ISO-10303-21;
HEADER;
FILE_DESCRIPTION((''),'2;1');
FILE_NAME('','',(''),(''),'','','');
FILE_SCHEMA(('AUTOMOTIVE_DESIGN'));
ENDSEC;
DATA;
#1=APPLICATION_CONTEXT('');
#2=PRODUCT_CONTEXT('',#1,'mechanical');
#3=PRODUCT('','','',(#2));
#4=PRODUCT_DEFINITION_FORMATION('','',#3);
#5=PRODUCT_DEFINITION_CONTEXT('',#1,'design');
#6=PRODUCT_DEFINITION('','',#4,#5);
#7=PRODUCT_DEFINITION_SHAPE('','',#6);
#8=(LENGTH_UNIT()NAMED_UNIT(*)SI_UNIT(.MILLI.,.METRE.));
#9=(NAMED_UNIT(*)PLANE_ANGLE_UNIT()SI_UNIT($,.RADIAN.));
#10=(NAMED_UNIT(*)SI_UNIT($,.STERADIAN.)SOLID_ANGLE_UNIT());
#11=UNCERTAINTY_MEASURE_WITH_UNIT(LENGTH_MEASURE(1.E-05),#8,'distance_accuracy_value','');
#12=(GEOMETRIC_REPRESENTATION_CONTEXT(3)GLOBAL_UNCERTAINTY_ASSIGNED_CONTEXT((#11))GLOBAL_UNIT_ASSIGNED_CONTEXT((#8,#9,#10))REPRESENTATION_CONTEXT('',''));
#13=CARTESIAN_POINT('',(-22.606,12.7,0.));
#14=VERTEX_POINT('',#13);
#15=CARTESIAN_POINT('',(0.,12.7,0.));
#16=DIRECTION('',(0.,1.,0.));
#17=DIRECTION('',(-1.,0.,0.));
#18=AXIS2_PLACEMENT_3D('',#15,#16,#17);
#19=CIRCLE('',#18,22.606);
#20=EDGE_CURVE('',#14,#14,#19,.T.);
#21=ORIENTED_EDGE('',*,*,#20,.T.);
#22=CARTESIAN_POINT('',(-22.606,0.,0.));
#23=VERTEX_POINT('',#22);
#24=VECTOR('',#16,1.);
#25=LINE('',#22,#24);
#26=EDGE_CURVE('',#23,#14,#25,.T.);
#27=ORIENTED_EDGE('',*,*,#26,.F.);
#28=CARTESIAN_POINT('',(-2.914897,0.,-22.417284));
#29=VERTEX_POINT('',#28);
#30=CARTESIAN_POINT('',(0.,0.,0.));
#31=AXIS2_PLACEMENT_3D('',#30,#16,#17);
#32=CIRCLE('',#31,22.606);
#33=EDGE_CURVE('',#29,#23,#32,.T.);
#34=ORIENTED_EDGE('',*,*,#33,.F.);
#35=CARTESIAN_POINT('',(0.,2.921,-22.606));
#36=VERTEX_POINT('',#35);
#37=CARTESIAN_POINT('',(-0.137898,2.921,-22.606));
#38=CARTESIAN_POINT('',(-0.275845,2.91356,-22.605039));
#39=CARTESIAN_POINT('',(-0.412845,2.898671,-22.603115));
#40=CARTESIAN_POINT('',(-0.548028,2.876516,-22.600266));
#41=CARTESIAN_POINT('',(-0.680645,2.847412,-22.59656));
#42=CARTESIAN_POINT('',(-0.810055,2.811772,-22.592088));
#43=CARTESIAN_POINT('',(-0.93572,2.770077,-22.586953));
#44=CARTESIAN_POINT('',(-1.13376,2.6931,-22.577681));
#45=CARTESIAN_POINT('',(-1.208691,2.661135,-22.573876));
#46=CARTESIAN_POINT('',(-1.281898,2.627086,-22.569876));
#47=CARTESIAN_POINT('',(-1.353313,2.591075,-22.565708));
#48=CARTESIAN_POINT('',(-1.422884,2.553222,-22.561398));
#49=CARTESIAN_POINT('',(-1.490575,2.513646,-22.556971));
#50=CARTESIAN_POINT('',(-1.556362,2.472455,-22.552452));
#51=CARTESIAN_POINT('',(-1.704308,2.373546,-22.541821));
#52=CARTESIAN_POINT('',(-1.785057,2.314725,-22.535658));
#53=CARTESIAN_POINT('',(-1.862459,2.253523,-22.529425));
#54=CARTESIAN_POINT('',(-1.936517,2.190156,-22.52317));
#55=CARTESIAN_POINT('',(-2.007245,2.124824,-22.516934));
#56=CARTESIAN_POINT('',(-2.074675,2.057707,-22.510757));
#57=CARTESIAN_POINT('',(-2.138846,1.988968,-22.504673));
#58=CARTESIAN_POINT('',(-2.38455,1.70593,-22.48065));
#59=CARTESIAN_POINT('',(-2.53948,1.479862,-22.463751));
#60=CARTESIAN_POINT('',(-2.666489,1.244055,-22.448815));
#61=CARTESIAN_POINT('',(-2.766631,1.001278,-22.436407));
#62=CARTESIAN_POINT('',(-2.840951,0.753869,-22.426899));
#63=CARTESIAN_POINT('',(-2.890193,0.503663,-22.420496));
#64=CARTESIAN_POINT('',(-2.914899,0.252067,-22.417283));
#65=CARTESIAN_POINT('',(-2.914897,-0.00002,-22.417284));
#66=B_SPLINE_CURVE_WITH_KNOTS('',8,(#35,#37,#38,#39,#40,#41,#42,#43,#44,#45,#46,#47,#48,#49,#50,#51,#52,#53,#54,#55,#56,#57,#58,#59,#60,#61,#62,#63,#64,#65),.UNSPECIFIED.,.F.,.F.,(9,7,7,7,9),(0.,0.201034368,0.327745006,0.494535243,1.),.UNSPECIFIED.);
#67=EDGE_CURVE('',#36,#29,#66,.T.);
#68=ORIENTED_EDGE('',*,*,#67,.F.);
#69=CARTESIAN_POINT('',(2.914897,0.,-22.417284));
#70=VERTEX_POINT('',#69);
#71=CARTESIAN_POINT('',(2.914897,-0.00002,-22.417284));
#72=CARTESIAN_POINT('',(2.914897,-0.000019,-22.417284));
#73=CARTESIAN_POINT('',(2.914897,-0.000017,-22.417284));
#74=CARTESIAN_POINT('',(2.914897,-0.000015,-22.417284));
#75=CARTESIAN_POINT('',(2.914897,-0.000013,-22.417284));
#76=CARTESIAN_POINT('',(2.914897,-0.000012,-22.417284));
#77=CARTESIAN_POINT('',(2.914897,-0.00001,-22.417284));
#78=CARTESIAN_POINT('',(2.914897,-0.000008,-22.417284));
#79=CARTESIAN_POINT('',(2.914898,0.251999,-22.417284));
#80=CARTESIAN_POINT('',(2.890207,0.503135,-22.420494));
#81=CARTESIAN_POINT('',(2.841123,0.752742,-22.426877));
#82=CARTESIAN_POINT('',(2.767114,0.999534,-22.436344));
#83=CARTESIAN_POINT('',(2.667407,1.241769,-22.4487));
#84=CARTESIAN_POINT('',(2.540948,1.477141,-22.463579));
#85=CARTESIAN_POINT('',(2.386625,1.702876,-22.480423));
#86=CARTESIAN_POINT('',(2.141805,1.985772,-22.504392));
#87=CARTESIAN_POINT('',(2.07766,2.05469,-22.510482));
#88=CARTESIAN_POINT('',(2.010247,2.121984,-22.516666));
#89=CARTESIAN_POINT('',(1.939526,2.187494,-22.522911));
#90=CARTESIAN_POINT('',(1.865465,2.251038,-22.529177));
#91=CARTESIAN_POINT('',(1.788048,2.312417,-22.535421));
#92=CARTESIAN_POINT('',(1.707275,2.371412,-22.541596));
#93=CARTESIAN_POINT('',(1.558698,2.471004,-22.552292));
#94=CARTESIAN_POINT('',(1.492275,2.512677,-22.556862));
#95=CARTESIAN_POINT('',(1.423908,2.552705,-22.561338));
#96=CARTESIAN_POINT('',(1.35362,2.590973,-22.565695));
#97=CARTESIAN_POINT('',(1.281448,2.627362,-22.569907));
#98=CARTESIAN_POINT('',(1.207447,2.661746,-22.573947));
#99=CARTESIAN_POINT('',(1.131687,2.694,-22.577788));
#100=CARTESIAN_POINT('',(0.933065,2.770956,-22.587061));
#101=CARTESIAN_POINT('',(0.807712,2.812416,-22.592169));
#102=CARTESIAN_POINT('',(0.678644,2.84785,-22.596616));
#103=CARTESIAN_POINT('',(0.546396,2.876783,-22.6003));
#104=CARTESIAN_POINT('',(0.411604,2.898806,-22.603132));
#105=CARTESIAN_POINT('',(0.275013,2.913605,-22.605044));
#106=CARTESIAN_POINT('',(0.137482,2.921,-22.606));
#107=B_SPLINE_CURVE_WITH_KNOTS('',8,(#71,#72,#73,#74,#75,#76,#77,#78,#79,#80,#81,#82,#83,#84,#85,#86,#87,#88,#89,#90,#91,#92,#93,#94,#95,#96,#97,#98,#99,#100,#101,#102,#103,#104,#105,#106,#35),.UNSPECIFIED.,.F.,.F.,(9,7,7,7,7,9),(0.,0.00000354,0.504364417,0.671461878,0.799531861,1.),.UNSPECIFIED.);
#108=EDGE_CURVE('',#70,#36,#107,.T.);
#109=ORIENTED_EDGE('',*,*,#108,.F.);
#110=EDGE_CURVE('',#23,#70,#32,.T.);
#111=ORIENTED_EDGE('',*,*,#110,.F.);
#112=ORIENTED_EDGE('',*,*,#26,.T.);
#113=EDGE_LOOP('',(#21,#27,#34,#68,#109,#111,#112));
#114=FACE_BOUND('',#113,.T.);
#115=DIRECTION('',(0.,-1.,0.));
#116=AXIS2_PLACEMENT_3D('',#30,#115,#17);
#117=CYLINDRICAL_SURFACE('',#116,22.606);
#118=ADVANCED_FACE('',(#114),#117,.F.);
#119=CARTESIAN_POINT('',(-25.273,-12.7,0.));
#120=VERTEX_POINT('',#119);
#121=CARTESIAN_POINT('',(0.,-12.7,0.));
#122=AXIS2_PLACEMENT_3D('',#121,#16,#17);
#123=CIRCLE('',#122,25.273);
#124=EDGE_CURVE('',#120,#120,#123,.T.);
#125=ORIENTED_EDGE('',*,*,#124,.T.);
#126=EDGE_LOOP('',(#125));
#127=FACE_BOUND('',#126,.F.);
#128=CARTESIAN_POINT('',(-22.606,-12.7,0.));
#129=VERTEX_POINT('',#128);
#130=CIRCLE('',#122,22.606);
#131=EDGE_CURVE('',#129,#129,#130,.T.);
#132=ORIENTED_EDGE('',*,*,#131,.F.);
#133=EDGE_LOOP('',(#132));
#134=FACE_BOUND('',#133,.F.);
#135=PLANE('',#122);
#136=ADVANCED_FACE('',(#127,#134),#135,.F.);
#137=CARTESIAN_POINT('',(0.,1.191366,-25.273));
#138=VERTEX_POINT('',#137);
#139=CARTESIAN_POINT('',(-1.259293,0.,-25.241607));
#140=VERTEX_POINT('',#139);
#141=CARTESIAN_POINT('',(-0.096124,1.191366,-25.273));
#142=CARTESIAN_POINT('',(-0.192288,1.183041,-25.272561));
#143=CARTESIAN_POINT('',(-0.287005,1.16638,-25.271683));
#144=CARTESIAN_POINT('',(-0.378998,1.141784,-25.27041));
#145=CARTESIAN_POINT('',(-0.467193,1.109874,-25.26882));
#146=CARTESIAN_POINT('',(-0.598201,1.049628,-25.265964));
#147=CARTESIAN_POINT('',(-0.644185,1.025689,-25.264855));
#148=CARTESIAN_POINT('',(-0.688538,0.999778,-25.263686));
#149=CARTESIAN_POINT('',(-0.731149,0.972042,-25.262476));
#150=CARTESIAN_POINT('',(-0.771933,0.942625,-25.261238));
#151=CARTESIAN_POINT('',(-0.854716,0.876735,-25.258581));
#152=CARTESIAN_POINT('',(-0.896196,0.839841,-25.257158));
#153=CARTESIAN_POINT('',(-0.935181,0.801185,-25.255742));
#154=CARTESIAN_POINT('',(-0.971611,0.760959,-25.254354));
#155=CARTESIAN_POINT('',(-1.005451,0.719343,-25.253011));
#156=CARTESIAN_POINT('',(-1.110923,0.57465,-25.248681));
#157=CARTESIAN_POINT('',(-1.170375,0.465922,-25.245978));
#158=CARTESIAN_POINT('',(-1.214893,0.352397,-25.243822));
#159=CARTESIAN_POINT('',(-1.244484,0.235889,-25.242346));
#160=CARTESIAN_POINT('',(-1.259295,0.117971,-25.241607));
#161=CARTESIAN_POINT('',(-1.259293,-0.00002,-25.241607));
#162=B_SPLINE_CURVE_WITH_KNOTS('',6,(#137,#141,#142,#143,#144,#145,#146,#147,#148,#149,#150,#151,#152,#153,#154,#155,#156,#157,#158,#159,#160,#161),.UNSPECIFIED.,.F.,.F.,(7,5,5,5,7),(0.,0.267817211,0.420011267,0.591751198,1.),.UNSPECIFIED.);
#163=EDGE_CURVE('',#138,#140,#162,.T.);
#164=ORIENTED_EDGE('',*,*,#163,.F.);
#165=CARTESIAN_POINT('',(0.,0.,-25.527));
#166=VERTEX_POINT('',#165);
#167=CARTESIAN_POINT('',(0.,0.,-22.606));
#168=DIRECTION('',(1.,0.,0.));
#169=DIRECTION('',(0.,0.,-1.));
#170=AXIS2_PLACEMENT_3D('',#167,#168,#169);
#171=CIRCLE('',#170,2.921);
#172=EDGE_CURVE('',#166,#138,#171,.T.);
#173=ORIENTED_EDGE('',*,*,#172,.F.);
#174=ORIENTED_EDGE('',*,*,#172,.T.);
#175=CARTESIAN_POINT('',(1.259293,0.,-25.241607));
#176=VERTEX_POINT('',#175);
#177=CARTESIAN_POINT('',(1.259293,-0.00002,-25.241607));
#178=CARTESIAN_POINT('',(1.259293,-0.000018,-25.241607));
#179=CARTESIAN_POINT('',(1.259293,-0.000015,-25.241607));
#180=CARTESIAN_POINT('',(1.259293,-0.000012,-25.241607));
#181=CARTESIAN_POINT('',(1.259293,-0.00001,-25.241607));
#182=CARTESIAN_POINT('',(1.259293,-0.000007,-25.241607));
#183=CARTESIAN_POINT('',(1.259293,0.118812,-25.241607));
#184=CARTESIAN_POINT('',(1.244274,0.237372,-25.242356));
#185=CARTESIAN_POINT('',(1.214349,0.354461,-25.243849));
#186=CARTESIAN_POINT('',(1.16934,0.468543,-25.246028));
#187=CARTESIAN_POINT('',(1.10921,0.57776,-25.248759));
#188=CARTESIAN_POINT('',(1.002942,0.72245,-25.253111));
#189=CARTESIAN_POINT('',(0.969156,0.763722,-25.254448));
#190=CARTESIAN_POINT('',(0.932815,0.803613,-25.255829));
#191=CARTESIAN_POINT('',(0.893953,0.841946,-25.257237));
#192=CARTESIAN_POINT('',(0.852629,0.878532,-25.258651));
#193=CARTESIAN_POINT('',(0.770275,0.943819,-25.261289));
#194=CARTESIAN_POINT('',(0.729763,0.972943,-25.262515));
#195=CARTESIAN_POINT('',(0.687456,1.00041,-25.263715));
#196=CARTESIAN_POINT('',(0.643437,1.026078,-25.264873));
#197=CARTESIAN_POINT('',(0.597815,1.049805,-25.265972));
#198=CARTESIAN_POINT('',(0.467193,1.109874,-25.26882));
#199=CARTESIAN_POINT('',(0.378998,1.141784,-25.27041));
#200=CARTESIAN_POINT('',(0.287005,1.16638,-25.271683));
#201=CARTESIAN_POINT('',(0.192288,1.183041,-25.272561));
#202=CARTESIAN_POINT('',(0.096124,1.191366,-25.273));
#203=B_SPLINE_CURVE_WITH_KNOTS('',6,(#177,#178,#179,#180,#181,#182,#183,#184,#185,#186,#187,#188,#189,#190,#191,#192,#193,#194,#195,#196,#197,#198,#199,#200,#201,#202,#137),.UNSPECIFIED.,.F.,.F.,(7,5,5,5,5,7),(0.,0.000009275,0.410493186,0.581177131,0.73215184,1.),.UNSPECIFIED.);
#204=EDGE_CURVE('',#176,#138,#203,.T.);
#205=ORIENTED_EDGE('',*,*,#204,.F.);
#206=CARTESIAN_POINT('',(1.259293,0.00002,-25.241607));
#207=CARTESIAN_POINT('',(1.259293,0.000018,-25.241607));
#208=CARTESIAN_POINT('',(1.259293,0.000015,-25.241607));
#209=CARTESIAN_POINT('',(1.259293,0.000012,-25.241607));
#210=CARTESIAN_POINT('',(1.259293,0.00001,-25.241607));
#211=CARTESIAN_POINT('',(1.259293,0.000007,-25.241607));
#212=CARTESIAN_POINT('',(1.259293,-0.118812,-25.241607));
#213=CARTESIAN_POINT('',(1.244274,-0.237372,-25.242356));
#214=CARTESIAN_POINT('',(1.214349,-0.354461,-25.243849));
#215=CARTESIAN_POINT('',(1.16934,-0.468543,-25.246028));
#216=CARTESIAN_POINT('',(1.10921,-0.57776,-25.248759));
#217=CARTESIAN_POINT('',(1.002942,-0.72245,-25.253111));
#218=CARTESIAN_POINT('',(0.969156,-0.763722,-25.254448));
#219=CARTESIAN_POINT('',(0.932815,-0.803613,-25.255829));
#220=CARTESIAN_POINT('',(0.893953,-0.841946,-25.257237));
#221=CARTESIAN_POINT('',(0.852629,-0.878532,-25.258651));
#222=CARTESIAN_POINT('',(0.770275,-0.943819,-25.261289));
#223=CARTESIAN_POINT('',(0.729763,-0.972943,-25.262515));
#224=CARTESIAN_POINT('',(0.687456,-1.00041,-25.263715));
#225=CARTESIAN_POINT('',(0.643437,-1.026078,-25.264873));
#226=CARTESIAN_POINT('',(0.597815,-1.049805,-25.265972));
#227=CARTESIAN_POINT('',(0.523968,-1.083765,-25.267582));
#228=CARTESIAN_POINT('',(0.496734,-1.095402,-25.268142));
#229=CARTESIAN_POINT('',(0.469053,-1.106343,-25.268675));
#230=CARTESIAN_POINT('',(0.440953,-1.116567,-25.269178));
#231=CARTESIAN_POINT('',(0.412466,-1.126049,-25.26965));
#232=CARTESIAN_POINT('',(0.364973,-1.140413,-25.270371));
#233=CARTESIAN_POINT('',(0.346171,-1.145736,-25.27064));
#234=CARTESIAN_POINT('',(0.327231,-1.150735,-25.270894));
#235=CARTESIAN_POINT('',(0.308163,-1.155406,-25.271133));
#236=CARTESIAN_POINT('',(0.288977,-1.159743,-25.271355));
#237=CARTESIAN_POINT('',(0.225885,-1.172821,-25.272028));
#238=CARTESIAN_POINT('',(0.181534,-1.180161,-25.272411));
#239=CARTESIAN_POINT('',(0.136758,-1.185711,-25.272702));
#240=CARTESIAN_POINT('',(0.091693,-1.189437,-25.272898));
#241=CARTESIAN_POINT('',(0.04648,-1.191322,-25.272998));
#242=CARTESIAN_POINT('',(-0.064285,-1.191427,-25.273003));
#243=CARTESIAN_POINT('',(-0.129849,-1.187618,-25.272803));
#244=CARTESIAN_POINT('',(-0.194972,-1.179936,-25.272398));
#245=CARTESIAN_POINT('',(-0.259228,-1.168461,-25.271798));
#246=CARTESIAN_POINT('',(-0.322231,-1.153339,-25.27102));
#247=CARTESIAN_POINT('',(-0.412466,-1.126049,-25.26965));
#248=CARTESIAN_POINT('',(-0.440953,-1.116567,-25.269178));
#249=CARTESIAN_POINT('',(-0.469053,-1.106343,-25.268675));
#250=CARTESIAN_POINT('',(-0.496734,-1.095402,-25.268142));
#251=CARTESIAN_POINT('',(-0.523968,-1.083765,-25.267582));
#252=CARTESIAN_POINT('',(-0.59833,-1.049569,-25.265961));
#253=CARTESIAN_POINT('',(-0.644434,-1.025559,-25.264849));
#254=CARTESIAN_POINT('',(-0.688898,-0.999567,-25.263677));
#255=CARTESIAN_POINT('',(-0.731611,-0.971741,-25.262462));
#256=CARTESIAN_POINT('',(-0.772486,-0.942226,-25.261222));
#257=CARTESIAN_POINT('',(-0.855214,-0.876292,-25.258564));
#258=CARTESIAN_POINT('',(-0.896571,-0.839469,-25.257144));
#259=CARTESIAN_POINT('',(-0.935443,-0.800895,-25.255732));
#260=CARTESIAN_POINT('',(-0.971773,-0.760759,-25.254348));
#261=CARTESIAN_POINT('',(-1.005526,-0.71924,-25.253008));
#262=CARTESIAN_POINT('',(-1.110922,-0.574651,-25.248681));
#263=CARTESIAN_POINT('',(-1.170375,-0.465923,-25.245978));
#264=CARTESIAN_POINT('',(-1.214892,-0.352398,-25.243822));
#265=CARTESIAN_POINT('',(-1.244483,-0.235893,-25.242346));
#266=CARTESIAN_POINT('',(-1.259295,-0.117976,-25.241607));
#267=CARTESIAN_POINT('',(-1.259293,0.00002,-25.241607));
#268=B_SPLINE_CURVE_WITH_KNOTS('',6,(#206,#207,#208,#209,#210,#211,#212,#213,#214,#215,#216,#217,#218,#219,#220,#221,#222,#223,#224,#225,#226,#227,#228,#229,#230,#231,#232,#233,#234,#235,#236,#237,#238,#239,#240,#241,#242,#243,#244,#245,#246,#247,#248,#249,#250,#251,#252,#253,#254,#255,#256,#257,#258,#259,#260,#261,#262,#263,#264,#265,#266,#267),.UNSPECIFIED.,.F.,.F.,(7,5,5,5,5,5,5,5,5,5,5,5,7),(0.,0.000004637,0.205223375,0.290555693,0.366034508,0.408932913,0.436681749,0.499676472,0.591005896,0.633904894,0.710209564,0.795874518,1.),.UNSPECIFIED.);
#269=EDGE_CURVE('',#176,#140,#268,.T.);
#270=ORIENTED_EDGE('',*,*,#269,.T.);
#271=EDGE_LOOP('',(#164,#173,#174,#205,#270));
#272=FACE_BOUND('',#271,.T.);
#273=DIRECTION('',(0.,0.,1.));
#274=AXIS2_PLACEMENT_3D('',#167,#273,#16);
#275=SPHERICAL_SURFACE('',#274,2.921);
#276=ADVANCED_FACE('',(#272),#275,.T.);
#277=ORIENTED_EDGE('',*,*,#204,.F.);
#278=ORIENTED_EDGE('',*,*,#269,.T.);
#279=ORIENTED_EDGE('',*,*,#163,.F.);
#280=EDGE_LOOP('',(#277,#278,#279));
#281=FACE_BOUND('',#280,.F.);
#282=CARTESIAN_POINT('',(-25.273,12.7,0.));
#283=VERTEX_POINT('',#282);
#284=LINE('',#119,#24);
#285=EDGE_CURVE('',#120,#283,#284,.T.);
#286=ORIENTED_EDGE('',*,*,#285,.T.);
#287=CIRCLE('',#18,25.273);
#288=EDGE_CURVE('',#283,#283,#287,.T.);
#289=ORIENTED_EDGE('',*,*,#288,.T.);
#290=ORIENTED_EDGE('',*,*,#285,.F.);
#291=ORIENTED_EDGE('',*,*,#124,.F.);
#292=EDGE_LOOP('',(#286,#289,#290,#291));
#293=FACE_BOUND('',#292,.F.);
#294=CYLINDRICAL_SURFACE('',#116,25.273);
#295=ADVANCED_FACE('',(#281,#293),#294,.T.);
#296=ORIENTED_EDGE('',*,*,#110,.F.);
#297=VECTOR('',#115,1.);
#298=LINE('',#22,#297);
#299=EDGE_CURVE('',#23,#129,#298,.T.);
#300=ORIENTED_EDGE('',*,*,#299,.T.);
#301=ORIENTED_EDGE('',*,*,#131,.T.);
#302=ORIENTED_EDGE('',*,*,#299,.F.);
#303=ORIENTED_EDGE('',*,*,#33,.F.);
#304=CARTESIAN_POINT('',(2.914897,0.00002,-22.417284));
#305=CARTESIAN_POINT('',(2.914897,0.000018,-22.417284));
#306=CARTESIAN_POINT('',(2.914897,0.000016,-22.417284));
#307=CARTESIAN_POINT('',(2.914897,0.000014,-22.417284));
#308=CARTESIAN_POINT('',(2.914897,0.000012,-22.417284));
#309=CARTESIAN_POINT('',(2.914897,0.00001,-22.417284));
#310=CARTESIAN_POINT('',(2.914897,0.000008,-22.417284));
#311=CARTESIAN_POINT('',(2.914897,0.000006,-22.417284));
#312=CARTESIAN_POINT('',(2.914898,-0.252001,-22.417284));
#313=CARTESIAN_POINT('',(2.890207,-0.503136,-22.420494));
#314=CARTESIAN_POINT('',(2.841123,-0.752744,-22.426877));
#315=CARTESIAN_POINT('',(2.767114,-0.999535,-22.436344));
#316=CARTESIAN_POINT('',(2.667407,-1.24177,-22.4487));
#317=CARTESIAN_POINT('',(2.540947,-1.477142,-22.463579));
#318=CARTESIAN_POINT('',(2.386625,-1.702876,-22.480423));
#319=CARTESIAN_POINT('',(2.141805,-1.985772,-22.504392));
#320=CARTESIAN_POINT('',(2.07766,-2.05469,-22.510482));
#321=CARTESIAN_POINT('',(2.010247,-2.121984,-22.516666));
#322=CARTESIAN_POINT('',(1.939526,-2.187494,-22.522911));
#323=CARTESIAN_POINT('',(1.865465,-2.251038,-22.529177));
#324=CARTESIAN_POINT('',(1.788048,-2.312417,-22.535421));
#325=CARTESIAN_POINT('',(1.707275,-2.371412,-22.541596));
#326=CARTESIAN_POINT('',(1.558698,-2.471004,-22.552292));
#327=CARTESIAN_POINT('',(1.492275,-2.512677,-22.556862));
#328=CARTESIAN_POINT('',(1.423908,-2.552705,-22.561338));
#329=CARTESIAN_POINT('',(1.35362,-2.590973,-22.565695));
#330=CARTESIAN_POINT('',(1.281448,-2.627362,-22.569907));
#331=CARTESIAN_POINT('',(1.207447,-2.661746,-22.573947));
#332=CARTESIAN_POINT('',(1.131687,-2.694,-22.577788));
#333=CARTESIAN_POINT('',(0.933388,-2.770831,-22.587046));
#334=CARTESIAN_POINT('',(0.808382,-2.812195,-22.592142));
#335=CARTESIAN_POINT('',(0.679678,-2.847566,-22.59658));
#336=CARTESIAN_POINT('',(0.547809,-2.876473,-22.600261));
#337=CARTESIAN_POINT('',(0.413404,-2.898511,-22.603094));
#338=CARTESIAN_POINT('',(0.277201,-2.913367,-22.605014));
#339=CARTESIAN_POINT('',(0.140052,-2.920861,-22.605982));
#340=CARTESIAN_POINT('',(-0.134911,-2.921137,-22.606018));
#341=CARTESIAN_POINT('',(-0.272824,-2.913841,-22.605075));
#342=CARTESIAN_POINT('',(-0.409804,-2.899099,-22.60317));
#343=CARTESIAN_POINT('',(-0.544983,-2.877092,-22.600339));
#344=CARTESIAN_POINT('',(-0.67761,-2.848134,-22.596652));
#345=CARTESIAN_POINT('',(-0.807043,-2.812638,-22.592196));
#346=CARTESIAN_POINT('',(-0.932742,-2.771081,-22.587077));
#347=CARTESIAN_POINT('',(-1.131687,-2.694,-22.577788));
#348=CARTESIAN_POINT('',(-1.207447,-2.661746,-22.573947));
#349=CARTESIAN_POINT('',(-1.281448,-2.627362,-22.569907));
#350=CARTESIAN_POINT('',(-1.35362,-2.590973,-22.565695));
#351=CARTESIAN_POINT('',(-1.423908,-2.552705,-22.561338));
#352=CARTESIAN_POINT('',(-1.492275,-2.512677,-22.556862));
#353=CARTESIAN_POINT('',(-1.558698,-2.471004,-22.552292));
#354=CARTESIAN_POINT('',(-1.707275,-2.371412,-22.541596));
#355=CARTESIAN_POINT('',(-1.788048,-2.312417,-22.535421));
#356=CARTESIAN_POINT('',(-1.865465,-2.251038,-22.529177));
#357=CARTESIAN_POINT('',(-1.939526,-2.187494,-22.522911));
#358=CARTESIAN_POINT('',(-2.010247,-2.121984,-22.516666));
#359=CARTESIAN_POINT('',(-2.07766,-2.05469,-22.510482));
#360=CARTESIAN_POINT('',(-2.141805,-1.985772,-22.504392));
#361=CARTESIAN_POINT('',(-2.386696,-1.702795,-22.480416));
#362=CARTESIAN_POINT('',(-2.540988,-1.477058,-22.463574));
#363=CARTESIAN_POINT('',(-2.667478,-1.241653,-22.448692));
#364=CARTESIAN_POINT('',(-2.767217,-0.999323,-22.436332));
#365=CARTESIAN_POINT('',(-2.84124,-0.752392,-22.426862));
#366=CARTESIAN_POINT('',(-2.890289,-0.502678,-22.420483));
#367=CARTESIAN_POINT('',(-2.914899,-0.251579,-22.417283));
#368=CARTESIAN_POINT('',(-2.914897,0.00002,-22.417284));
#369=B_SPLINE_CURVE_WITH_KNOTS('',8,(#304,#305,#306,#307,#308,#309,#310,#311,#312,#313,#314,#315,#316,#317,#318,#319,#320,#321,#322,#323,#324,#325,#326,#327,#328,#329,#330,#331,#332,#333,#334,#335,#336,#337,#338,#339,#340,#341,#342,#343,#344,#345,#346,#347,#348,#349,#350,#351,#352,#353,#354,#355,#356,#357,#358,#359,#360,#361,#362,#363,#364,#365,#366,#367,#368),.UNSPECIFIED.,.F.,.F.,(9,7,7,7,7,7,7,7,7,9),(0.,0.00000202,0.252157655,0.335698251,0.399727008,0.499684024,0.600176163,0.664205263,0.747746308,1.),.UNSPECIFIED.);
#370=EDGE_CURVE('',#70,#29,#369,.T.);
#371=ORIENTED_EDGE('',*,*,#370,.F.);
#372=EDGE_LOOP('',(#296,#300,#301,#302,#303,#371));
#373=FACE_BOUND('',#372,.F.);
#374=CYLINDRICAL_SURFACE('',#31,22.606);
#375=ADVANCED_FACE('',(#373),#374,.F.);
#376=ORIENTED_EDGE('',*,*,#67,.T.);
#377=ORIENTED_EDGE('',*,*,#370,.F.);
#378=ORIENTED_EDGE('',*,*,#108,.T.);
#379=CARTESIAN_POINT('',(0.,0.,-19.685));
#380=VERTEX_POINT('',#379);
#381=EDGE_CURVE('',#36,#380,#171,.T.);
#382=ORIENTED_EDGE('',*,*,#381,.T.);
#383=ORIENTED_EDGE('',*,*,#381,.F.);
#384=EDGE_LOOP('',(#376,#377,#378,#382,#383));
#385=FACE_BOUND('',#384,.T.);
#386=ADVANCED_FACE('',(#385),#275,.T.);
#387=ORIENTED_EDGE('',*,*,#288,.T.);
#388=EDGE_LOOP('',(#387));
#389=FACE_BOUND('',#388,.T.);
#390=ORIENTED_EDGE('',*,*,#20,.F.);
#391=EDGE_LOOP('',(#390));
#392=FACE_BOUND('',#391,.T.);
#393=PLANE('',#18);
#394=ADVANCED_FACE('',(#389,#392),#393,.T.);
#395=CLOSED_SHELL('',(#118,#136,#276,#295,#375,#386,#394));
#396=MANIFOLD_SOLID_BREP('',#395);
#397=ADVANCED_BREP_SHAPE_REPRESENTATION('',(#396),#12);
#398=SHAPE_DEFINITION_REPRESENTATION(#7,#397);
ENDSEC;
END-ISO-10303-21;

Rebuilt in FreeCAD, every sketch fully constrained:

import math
import FreeCAD as App
import Part
import Sketcher

V = App.Vector
Q = App.Units.Quantity

doc = App.newDocument("Part")
body = doc.addObject("PartDesign::Body", "Body")

# Sketch on XZ plane
sketch1 = body.newObject("Sketcher::SketchObject", "Sketch")
sketch1.AttachmentSupport = (doc.getObject("XZ_Plane"), [""])
sketch1.MapMode = "FlatFace"
sketch1.addGeometry([
    Part.Circle(V(0, 0, 0), V(0, 0, 1), 25.273),
    Part.Circle(V(0, 0, 0), V(0, 0, 1), 22.606),
], False)
sketch1.addConstraint([
    Sketcher.Constraint("Coincident", 0, 3, -1, 1),
    Sketcher.Constraint("Coincident", 1, 3, -1, 1),
    Sketcher.Constraint("Diameter", 0, Q("1.99 in")),
    Sketcher.Constraint("Diameter", 1, Q("1.78 in")),
])
pad1 = body.newObject("PartDesign::Pad", "Pad")
pad1.Profile = sketch1
pad1.Length = Q("1 in")
pad1.Midplane = True

# Sketch on YZ plane
sketch2 = body.newObject("Sketcher::SketchObject", "Sketch001")
sketch2.AttachmentSupport = (doc.getObject("YZ_Plane"), [""])
sketch2.MapMode = "FlatFace"
sketch2.addGeometry([
    Part.LineSegment(V(0, -19.685, 0), V(0, -25.527, 0)),
    Part.ArcOfCircle(Part.Circle(V(0, -22.606, 0), V(0, 0, 1), 2.921), math.radians(-90), math.radians(90)),
], False)
sketch2.addConstraint([
    Sketcher.Constraint("Coincident", 0, 1, 1, 2),
    Sketcher.Constraint("Coincident", 1, 1, 0, 2),
    Sketcher.Constraint("Vertical", 0),
    Sketcher.Constraint("PointOnObject", 1, 3, -2),
    Sketcher.Constraint("PointOnObject", 0, 1, -2),
    Sketcher.Constraint("Radius", 1, Q("0.115 in")),
    Sketcher.Constraint("DistanceY", 1, 3, -1, 1, Q("0.89 in")),
])
revolution = body.newObject("PartDesign::Revolution", "Revolution")
revolution.Profile = sketch2
revolution.ReferenceAxis = (sketch2, ["V_Axis"])
revolution.Angle = 360

doc.recompute()
